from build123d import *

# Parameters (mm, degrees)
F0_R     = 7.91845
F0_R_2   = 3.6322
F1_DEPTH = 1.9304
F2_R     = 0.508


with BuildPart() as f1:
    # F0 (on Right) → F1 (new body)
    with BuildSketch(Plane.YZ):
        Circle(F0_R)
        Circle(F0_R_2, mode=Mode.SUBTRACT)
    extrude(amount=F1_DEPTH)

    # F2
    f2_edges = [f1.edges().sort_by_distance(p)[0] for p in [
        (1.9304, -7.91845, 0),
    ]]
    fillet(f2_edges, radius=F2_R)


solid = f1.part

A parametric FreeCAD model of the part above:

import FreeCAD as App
import Part
import Sketcher

V = App.Vector
Q = App.Units.Quantity


def edges_at(feature, points):
    """Names of the edges that pass closest to the given points."""
    edges = feature.Shape.Edges
    near = lambda p: min(range(len(edges)), key=lambda i: edges[i].distToShape(Part.Vertex(*p))[0])
    return sorted({f"Edge{near(p) + 1}" for p in points})

doc = App.newDocument("Part")
params = doc.addObject("Spreadsheet::Sheet", "Params")
for row, (alias, value) in enumerate([
    ("sketch1_diameter", "0.286 in"),
    ("pad1_length", "0.076 in"),
    ("fillet_radius", "0.02 in"),
], start=1):
    params.set(f"A{row}", alias)
    params.set(f"B{row}", "=" + value)
    params.setAlias(f"B{row}", alias)

body = doc.addObject("PartDesign::Body", "Body")

# Sketch on YZ plane
sketch1 = body.newObject("Sketcher::SketchObject", "Sketch")
sketch1.AttachmentSupport = (doc.getObject("YZ_Plane"), [""])
sketch1.MapMode = "FlatFace"
sketch1.addGeometry(Part.Circle(V(0, 0, 0), V(0, 0, 1), 7.9), False)
sketch1.addGeometry(Part.Circle(V(0, 0, 0), V(0, 0, 1), 3.6), False)
sketch1.addConstraint(Sketcher.Constraint("Coincident", 0, 3, -1, 1))
sketch1.addConstraint(Sketcher.Constraint("Coincident", 1, 3, -1, 1))
sketch1.addConstraint(Sketcher.Constraint("Diameter", 1, Q("0.286 in")))
sketch1.addConstraint(Sketcher.Constraint("Diameter", 0, Q("0.6235 in")))
sketch1.setExpression("Constraints[2]", "Params.sketch1_diameter")
pad1 = body.newObject("PartDesign::Pad", "Pad")
pad1.Profile = sketch1
pad1.setExpression("Length", "Params.pad1_length")
doc.recompute()

fillet = body.newObject("PartDesign::Fillet", "Fillet")
fillet.Base = (pad1, edges_at(pad1, [(1.93, -7.918, 0)]))
fillet.setExpression("Radius", "Params.fillet_radius")

doc.recompute()
